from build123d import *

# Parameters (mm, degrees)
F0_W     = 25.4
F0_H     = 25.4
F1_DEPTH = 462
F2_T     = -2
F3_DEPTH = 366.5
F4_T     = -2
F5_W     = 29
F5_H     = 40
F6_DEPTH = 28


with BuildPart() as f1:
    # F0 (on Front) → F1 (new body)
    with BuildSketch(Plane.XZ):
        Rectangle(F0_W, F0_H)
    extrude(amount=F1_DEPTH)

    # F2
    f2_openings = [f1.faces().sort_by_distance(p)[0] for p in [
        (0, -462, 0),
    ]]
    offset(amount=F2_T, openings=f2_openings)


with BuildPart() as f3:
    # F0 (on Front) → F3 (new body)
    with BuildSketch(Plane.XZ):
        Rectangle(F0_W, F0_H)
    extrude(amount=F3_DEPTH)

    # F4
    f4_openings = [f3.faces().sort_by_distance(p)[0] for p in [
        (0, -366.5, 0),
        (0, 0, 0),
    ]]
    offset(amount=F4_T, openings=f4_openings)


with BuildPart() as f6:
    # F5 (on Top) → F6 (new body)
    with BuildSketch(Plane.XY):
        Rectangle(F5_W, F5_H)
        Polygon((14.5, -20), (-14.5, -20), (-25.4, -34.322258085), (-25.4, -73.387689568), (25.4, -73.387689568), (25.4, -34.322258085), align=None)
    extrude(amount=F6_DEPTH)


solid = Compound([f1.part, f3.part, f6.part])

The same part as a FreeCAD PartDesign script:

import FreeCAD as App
import Part
import Sketcher

V = App.Vector
Q = App.Units.Quantity


def faces_at(feature, points):
    """Names of the faces that lie closest to the given points."""
    faces = feature.Shape.Faces
    near = lambda p: min(range(len(faces)), key=lambda i: faces[i].distToShape(Part.Vertex(*p))[0])
    return sorted({f"Face{near(p) + 1}" for p in points})

doc = App.newDocument("Part")
body = doc.addObject("PartDesign::Body", "Body")

sketch1 = body.newObject("Sketcher::SketchObject", "Sketch")
sketch1.AttachmentSupport = (doc.getObject("XZ_Plane"), [""])
sketch1.MapMode = "FlatFace"
sketch1.addGeometry(Part.LineSegment(V(-12.7, 12.7, 0), V(-12.7, -12.7, 0)), False)
sketch1.addGeometry(Part.LineSegment(V(-12.7, -12.7, 0), V(12.7, -12.7, 0)), False)
sketch1.addGeometry(Part.LineSegment(V(12.7, -12.7, 0), V(12.7, 12.7, 0)), False)
sketch1.addGeometry(Part.LineSegment(V(12.7, 12.7, 0), V(-12.7, 12.7, 0)), False)
sketch1.addConstraint(Sketcher.Constraint("Coincident", 0, 2, 1, 1))
sketch1.addConstraint(Sketcher.Constraint("Coincident", 1, 2, 2, 1))
sketch1.addConstraint(Sketcher.Constraint("Coincident", 2, 2, 3, 1))
sketch1.addConstraint(Sketcher.Constraint("Coincident", 3, 2, 0, 1))
sketch1.addConstraint(Sketcher.Constraint("Vertical", 0))
sketch1.addConstraint(Sketcher.Constraint("Horizontal", 1))
sketch1.addConstraint(Sketcher.Constraint("Vertical", 2))
sketch1.addConstraint(Sketcher.Constraint("Horizontal", 3))
sketch1.addConstraint(Sketcher.Constraint("Symmetric", 0, 2, 2, 2, -1, 1))
sketch1.addConstraint(Sketcher.Constraint("Equal", 3, 0))
sketch1.addConstraint(Sketcher.Constraint("DistanceX", 1, 1, 1, 2, Q("25.4 mm")))
pad1 = body.newObject("PartDesign::Pad", "Pad")
pad1.Profile = sketch1
pad1.Length = 462
doc.recompute()

thickness = body.newObject("PartDesign::Thickness", "Thickness")
thickness.Base = (pad1, faces_at(pad1, [(0, -462, 0)]))
thickness.Value = 2
thickness.Reversed = True
thickness.Join = "Arc"
body2 = doc.addObject("PartDesign::Body", "Body001")

sketch2 = body2.newObject("Sketcher::SketchObject", "Sketch001")
sketch2.AttachmentSupport = (doc.getObject("XZ_Plane001"), [""])
sketch2.MapMode = "FlatFace"
sketch2.addGeometry(Part.LineSegment(V(-12.7, 12.7, 0), V(-12.7, -12.7, 0)), False)
sketch2.addGeometry(Part.LineSegment(V(-12.7, -12.7, 0), V(12.7, -12.7, 0)), False)
sketch2.addGeometry(Part.LineSegment(V(12.7, -12.7, 0), V(12.7, 12.7, 0)), False)
sketch2.addGeometry(Part.LineSegment(V(12.7, 12.7, 0), V(-12.7, 12.7, 0)), False)
sketch2.addConstraint(Sketcher.Constraint("Coincident", 0, 2, 1, 1))
sketch2.addConstraint(Sketcher.Constraint("Coincident", 1, 2, 2, 1))
sketch2.addConstraint(Sketcher.Constraint("Coincident", 2, 2, 3, 1))
sketch2.addConstraint(Sketcher.Constraint("Coincident", 3, 2, 0, 1))
sketch2.addConstraint(Sketcher.Constraint("Vertical", 0))
sketch2.addConstraint(Sketcher.Constraint("Horizontal", 1))
sketch2.addConstraint(Sketcher.Constraint("Vertical", 2))
sketch2.addConstraint(Sketcher.Constraint("Horizontal", 3))
sketch2.addConstraint(Sketcher.Constraint("Symmetric", 0, 2, 2, 2, -1, 1))
sketch2.addConstraint(Sketcher.Constraint("Equal", 3, 0))
sketch2.addConstraint(Sketcher.Constraint("DistanceX", 1, 1, 1, 2, Q("25.4 mm")))
pad2 = body2.newObject("PartDesign::Pad", "Pad001")
pad2.Profile = sketch2
pad2.Length = 366.5
doc.recompute()

thickness2 = body2.newObject("PartDesign::Thickness", "Thickness001")
thickness2.Base = (pad2, faces_at(pad2, [(0, -366.5, 0), (0, 0, 0)]))
thickness2.Value = 2
thickness2.Reversed = True
thickness2.Join = "Arc"
body3 = doc.addObject("PartDesign::Body", "Body002")

sketch3 = body3.newObject("Sketcher::SketchObject", "Sketch002")
sketch3.AttachmentSupport = (doc.getObject("XY_Plane002"), [""])
sketch3.MapMode = "FlatFace"
sketch3.addGeometry(Part.LineSegment(V(-14.5, 20, 0), V(-14.5, -20, 0)), False)
sketch3.addGeometry(Part.LineSegment(V(-14.5, -20, 0), V(-25.4, -34.322258, 0)), False)
sketch3.addGeometry(Part.LineSegment(V(-25.4, -34.322258, 0), V(-25.4, -73.38769, 0)), False)
sketch3.addGeometry(Part.LineSegment(V(-25.4, -73.38769, 0), V(25.4, -73.38769, 0)), False)
sketch3.addGeometry(Part.LineSegment(V(25.4, -73.38769, 0), V(25.4, -34.322258, 0)), False)
sketch3.addGeometry(Part.LineSegment(V(25.4, -34.322258, 0), V(14.5, -20, 0)), False)
sketch3.addGeometry(Part.LineSegment(V(14.5, -20, 0), V(14.5, 20, 0)), False)
sketch3.addGeometry(Part.LineSegment(V(14.5, 20, 0), V(-14.5, 20, 0)), False)
sketch3.addConstraint(Sketcher.Constraint("Coincident", 0, 2, 1, 1))
sketch3.addConstraint(Sketcher.Constraint("Coincident", 1, 2, 2, 1))
sketch3.addConstraint(Sketcher.Constraint("Coincident", 2, 2, 3, 1))
sketch3.addConstraint(Sketcher.Constraint("Coincident", 3, 2, 4, 1))
sketch3.addConstraint(Sketcher.Constraint("Coincident", 4, 2, 5, 1))
sketch3.addConstraint(Sketcher.Constraint("Coincident", 5, 2, 6, 1))
sketch3.addConstraint(Sketcher.Constraint("Coincident", 6, 2, 7, 1))
sketch3.addConstraint(Sketcher.Constraint("Coincident", 7, 2, 0, 1))
sketch3.addConstraint(Sketcher.Constraint("Vertical", 0))
sketch3.addConstraint(Sketcher.Constraint("Vertical", 2))
sketch3.addConstraint(Sketcher.Constraint("Horizontal", 3))
sketch3.addConstraint(Sketcher.Constraint("Vertical", 4))
sketch3.addConstraint(Sketcher.Constraint("Vertical", 6))
sketch3.addConstraint(Sketcher.Constraint("Horizontal", 7))
sketch3.addConstraint(Sketcher.Constraint("Symmetric", 0, 2, 6, 2, -1, 1))
sketch3.addConstraint(Sketcher.Constraint("Symmetric", 1, 2, 4, 2, -2))
sketch3.addConstraint(Sketcher.Constraint("Horizontal", 0, 2, 5, 2))
sketch3.addConstraint(Sketcher.Constraint("DistanceX", 7, 2, 7, 1, Q("29 mm")))
sketch3.addConstraint(Sketcher.Constraint("DistanceY", 0, 2, 0, 1, Q("40 mm")))
sketch3.addConstraint(Sketcher.Constraint("DistanceX", 3, 1, 3, 2, Q("50.8 mm")))
sketch3.addConstraint(Sketcher.Constraint("DistanceY", 2, 2, 2, 1, Q("39.065431 mm")))
sketch3.addConstraint(Sketcher.Constraint("DistanceY", 1, 2, -1, 1, Q("34.322258 mm")))
pad3 = body3.newObject("PartDesign::Pad", "Pad002")
pad3.Profile = sketch3
pad3.Length = 28

doc.recompute()
